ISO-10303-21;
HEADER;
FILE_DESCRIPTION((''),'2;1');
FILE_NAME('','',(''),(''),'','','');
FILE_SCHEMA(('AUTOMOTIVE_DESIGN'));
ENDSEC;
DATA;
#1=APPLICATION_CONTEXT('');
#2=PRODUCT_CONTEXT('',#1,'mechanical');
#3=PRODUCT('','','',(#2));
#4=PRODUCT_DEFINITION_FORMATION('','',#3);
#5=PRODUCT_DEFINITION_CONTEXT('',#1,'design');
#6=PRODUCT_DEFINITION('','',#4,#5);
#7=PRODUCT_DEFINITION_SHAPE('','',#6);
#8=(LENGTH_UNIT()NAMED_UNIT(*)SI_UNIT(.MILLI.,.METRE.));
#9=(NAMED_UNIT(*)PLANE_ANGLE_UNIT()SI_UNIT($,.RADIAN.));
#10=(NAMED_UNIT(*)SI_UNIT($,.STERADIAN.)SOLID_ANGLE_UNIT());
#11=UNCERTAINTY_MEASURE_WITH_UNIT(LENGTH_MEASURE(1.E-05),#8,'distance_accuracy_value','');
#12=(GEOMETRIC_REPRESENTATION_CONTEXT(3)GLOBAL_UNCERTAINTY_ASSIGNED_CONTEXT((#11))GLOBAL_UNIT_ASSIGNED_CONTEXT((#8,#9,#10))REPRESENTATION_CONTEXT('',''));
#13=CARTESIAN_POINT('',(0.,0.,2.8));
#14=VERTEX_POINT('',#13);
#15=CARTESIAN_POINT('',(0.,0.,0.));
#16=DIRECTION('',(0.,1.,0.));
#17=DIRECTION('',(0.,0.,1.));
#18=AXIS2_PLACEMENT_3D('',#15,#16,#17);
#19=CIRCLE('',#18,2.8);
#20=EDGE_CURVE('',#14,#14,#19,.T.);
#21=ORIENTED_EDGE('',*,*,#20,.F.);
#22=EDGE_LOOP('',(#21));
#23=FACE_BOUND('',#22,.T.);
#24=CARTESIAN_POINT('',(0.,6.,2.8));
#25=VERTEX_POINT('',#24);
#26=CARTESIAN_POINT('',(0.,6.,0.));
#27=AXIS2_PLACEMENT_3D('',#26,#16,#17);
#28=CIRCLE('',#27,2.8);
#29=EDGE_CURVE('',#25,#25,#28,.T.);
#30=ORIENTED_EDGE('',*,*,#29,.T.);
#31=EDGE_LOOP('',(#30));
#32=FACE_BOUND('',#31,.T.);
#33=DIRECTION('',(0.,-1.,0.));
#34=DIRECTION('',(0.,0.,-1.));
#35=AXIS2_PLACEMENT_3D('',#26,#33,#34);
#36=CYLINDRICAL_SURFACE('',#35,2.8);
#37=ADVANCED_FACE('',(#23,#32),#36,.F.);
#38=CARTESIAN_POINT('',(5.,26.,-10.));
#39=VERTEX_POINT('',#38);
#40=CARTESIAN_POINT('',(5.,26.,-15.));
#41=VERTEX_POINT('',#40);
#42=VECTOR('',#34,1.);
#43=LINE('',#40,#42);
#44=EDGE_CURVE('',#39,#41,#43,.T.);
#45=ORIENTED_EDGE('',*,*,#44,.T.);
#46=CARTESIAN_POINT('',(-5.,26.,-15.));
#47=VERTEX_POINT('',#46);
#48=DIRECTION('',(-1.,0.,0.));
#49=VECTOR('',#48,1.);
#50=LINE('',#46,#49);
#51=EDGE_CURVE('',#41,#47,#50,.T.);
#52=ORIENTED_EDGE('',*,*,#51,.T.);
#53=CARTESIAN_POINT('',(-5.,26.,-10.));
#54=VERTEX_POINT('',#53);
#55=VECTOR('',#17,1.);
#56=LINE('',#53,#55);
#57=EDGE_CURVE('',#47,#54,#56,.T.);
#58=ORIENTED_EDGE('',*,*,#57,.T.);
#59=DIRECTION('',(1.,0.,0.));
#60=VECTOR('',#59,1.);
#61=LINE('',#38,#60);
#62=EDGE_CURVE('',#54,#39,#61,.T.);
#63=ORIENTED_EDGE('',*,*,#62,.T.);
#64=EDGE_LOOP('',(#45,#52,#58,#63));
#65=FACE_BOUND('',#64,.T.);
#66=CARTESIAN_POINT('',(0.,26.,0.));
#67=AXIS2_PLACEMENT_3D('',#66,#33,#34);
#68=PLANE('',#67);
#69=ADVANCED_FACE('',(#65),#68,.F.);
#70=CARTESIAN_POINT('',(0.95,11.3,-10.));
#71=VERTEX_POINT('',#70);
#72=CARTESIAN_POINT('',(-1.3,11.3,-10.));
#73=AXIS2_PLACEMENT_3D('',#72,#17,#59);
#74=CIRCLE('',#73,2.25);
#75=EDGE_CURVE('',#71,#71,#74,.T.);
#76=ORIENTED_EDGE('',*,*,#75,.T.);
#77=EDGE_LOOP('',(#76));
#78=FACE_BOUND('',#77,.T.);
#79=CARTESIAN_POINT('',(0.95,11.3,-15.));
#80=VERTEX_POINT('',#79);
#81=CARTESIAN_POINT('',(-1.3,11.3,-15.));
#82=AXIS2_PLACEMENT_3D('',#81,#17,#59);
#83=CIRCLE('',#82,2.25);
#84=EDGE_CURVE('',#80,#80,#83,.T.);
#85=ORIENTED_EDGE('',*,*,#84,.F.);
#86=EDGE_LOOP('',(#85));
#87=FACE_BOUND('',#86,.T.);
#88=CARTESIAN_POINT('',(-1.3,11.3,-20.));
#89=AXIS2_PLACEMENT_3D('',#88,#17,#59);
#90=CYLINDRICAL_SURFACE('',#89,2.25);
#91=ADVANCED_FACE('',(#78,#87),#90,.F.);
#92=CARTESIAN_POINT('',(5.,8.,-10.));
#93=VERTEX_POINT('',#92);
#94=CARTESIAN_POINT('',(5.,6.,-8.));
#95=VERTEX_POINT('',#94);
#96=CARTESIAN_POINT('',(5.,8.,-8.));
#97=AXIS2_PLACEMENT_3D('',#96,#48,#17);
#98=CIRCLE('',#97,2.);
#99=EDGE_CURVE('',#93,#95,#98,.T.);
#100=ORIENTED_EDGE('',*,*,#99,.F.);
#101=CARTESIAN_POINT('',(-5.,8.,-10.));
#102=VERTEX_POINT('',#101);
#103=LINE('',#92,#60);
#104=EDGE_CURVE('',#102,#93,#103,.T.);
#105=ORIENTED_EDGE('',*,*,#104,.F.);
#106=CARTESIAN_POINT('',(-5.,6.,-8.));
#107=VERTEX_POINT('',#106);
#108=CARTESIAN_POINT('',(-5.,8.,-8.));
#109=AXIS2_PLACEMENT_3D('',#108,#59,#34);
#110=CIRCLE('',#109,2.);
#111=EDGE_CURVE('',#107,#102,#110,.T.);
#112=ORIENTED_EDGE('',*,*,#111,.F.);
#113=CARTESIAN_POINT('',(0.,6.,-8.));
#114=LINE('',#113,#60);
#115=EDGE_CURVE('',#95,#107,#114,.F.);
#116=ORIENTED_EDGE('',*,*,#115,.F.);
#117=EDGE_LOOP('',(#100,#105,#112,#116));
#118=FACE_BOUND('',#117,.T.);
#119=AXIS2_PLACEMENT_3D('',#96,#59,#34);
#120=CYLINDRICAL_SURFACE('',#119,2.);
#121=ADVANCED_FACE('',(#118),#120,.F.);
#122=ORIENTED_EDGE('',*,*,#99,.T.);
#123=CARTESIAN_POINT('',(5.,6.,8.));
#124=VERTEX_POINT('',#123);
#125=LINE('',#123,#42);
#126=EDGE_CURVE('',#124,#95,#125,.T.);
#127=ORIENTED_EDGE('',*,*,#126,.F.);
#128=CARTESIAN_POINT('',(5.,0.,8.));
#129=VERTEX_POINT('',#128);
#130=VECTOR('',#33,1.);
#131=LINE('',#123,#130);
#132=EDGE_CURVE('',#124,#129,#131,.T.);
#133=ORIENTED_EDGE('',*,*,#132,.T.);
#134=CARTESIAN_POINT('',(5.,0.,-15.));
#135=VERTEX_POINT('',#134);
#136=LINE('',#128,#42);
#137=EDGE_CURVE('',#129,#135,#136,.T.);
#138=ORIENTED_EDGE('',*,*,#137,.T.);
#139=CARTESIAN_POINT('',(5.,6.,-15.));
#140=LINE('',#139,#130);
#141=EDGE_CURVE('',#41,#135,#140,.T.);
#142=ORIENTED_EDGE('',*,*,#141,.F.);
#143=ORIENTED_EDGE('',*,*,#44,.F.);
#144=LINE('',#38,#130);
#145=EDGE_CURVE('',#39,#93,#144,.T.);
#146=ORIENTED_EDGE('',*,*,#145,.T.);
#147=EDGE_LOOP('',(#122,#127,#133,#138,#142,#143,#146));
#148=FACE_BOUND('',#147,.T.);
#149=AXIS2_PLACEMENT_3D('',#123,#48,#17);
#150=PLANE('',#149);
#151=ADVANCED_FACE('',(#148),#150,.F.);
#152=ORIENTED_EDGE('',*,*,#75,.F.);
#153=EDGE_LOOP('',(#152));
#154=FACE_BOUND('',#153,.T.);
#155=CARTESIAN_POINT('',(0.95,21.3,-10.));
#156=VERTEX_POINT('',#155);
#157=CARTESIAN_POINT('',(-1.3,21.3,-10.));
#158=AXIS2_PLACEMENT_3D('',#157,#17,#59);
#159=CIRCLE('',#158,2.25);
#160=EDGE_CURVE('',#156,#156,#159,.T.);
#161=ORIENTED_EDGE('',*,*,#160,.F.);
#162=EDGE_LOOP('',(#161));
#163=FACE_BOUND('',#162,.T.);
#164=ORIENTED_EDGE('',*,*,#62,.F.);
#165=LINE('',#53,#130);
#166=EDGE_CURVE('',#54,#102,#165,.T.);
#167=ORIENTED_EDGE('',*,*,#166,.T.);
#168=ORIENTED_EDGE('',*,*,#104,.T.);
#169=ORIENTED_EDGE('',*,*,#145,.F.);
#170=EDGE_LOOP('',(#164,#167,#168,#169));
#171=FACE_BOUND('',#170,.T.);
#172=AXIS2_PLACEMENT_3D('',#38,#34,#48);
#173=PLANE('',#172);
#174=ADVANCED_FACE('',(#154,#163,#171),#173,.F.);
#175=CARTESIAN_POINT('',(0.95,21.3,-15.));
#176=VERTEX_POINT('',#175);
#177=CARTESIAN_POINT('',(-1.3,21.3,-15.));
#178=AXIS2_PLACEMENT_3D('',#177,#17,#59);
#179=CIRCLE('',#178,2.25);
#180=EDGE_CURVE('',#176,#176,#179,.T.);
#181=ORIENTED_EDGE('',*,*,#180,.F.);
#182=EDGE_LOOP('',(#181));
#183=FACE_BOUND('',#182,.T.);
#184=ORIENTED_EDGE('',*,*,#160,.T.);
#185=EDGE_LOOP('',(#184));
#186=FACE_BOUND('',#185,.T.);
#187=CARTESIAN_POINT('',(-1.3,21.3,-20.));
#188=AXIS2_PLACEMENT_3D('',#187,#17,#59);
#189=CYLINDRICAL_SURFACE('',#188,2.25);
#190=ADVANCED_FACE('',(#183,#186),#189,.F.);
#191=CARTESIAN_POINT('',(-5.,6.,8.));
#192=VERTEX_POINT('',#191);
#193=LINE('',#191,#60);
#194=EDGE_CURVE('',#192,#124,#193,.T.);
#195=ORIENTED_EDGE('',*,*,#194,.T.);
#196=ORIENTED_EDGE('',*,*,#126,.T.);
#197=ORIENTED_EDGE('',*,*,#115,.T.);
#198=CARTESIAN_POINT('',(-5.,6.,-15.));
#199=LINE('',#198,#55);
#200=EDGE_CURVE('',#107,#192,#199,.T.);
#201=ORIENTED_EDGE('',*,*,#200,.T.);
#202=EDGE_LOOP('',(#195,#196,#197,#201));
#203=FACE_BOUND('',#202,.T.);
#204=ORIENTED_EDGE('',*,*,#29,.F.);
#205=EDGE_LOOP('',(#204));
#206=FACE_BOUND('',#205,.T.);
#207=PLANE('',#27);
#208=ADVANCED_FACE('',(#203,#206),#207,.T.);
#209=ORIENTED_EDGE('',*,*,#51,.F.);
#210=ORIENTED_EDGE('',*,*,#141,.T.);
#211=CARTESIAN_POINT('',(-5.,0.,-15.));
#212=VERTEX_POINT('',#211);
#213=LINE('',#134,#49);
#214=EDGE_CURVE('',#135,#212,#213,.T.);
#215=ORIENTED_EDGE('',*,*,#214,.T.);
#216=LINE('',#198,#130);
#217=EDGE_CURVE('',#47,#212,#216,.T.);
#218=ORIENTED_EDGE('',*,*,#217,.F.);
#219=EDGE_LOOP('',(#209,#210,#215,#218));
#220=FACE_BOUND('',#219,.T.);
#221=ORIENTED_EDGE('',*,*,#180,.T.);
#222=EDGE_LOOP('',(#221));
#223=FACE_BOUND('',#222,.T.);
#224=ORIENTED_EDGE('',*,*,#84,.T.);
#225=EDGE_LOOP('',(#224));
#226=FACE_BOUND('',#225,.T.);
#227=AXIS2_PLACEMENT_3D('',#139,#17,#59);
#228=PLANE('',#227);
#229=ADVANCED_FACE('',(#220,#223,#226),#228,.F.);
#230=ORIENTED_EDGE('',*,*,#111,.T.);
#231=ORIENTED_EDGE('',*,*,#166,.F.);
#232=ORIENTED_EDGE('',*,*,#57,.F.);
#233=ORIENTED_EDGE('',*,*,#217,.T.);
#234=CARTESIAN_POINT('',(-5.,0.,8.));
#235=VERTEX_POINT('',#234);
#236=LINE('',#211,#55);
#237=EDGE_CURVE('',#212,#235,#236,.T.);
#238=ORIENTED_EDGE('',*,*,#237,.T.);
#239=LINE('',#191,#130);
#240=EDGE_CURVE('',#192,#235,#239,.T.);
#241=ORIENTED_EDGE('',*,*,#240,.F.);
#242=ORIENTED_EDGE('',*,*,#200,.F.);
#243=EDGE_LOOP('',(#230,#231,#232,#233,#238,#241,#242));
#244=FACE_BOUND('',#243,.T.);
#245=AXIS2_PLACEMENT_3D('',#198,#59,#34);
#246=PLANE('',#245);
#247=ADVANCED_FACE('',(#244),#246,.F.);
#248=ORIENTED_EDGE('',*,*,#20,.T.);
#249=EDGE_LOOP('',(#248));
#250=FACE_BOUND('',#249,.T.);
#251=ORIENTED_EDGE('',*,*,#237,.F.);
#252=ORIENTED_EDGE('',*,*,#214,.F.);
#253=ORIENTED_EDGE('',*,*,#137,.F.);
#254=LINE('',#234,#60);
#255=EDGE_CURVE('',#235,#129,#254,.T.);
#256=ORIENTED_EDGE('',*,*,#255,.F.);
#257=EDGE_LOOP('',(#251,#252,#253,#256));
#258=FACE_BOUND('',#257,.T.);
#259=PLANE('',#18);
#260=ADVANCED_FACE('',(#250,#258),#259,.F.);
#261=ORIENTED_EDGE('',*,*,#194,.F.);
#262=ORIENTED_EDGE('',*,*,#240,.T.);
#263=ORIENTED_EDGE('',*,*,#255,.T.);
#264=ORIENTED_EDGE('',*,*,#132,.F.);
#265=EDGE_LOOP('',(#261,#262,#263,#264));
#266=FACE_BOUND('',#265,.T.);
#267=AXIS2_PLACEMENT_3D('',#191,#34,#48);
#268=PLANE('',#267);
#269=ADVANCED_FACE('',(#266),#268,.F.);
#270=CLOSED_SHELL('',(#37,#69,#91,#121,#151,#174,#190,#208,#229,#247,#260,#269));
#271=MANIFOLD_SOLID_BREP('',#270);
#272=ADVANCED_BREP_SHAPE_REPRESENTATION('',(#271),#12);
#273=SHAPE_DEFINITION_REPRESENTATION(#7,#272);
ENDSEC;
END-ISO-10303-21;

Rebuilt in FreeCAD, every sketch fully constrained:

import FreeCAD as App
import Part
import Sketcher
Q = App.Units.Quantity


def edges_at(feature, points):
    """Names of the edges that pass closest to the given points."""
    edges = feature.Shape.Edges
    near = lambda p: min(range(len(edges)), key=lambda i: edges[i].distToShape(Part.Vertex(*p))[0])
    return sorted({f"Edge{near(p) + 1}" for p in points})

doc = App.newDocument("Part")
body = doc.addObject("PartDesign::Body", "Body")

# Sketch on XZ plane
sketch1 = body.newObject("Sketcher::SketchObject", "Sketch")
sketch1.AttachmentSupport = (doc.getObject("XZ_Plane"), [""])
sketch1.MapMode = "FlatFace"
sketch1.addGeometry(Part.LineSegment(App.Vector(-5, -15, 0), App.Vector(-5, 8, 0)), False)
sketch1.addGeometry(Part.LineSegment(App.Vector(-5, 8, 0), App.Vector(5, 8, 0)), False)
sketch1.addGeometry(Part.LineSegment(App.Vector(5, 8, 0), App.Vector(5, -15, 0)), False)
sketch1.addGeometry(Part.LineSegment(App.Vector(5, -15, 0), App.Vector(-5, -15, 0)), False)
sketch1.addGeometry(Part.Circle(App.Vector(0, 0, 0), App.Vector(0, 0, 1), 2.8), False)
sketch1.addConstraint(Sketcher.Constraint("Coincident", 0, 2, 1, 1))
sketch1.addConstraint(Sketcher.Constraint("Coincident", 1, 2, 2, 1))
sketch1.addConstraint(Sketcher.Constraint("Coincident", 2, 2, 3, 1))
sketch1.addConstraint(Sketcher.Constraint("Coincident", 3, 2, 0, 1))
sketch1.addConstraint(Sketcher.Constraint("Vertical", 0))
sketch1.addConstraint(Sketcher.Constraint("Horizontal", 1))
sketch1.addConstraint(Sketcher.Constraint("Vertical", 2))
sketch1.addConstraint(Sketcher.Constraint("Horizontal", 3))
sketch1.addConstraint(Sketcher.Constraint("Coincident", 4, 3, -1, 1))
sketch1.addConstraint(Sketcher.Constraint("Diameter", 4, Q("5.6 mm")))
sketch1.addConstraint(Sketcher.Constraint("DistanceX", 1, 1, 1, 2, Q("10 mm")))
sketch1.addConstraint(Sketcher.Constraint("DistanceY", 0, 1, 0, 2, Q("23 mm")))
sketch1.addConstraint(Sketcher.Constraint("DistanceX", 0, 2, -1, 1, Q("5 mm")))
sketch1.addConstraint(Sketcher.Constraint("DistanceY", -1, 1, 0, 2, Q("8 mm")))
pad1 = body.newObject("PartDesign::Pad", "Pad")
pad1.Profile = sketch1
pad1.Length = 6
pad1.Reversed = True

# Sketch on XZ plane
sketch2 = body.newObject("Sketcher::SketchObject", "Sketch001")
sketch2.AttachmentSupport = (doc.getObject("XZ_Plane"), [""])
sketch2.MapMode = "FlatFace"
sketch2.AttachmentOffset = App.Placement(App.Vector(0, 0, -6), App.Rotation())
sketch2.addGeometry(Part.LineSegment(App.Vector(-5, -15, 0), App.Vector(-5, -10, 0)), False)
sketch2.addGeometry(Part.LineSegment(App.Vector(-5, -10, 0), App.Vector(5, -10, 0)), False)
sketch2.addGeometry(Part.LineSegment(App.Vector(5, -10, 0), App.Vector(5, -15, 0)), False)
sketch2.addGeometry(Part.LineSegment(App.Vector(5, -15, 0), App.Vector(-5, -15, 0)), False)
sketch2.addConstraint(Sketcher.Constraint("Coincident", 0, 2, 1, 1))
sketch2.addConstraint(Sketcher.Constraint("Coincident", 1, 2, 2, 1))
sketch2.addConstraint(Sketcher.Constraint("Coincident", 2, 2, 3, 1))
sketch2.addConstraint(Sketcher.Constraint("Coincident", 3, 2, 0, 1))
sketch2.addConstraint(Sketcher.Constraint("Vertical", 0))
sketch2.addConstraint(Sketcher.Constraint("Horizontal", 1))
sketch2.addConstraint(Sketcher.Constraint("Vertical", 2))
sketch2.addConstraint(Sketcher.Constraint("Horizontal", 3))
sketch2.addConstraint(Sketcher.Constraint("DistanceX", 1, 1, 1, 2, Q("10 mm")))
sketch2.addConstraint(Sketcher.Constraint("DistanceY", 0, 1, 0, 2, Q("5 mm")))
sketch2.addConstraint(Sketcher.Constraint("DistanceX", 0, 2, -1, 1, Q("5 mm")))
sketch2.addConstraint(Sketcher.Constraint("DistanceY", 0, 2, -1, 1, Q("10 mm")))
pad2 = body.newObject("PartDesign::Pad", "Pad001")
pad2.Profile = sketch2
pad2.Length = 20
pad2.Reversed = True

# Sketch on XY plane
sketch3 = body.newObject("Sketcher::SketchObject", "Sketch002")
sketch3.AttachmentSupport = (doc.getObject("XY_Plane"), [""])
sketch3.MapMode = "FlatFace"
sketch3.AttachmentOffset = App.Placement(App.Vector(0, 0, -10), App.Rotation())
sketch3.addGeometry(Part.Circle(App.Vector(-1.3, 11.3, 0), App.Vector(0, 0, 1), 2.25), False)
sketch3.addGeometry(Part.Circle(App.Vector(-1.3, 21.3, 0), App.Vector(0, 0, 1), 2.25), False)
sketch3.addConstraint(Sketcher.Constraint("Equal", 0, 1))
sketch3.addConstraint(Sketcher.Constraint("Vertical", 0, 3, 1, 3))
sketch3.addConstraint(Sketcher.Constraint("Diameter", 0, Q("4.5 mm")))
sketch3.addConstraint(Sketcher.Constraint("DistanceY", 0, 3, 1, 3, Q("10 mm")))
sketch3.addConstraint(Sketcher.Constraint("DistanceX", 0, 3, -1, 1, Q("1.3 mm")))
sketch3.addConstraint(Sketcher.Constraint("DistanceY", -1, 1, 0, 3, Q("11.3 mm")))
pocket1 = body.newObject("PartDesign::Pocket", "Pocket")
pocket1.Profile = sketch3
pocket1.Length = 10
doc.recompute()

fillet = body.newObject("PartDesign::Fillet", "Fillet")
fillet.Base = (pocket1, edges_at(pocket1, [(0, 6, -10)]))
fillet.Radius = 2

doc.recompute()
